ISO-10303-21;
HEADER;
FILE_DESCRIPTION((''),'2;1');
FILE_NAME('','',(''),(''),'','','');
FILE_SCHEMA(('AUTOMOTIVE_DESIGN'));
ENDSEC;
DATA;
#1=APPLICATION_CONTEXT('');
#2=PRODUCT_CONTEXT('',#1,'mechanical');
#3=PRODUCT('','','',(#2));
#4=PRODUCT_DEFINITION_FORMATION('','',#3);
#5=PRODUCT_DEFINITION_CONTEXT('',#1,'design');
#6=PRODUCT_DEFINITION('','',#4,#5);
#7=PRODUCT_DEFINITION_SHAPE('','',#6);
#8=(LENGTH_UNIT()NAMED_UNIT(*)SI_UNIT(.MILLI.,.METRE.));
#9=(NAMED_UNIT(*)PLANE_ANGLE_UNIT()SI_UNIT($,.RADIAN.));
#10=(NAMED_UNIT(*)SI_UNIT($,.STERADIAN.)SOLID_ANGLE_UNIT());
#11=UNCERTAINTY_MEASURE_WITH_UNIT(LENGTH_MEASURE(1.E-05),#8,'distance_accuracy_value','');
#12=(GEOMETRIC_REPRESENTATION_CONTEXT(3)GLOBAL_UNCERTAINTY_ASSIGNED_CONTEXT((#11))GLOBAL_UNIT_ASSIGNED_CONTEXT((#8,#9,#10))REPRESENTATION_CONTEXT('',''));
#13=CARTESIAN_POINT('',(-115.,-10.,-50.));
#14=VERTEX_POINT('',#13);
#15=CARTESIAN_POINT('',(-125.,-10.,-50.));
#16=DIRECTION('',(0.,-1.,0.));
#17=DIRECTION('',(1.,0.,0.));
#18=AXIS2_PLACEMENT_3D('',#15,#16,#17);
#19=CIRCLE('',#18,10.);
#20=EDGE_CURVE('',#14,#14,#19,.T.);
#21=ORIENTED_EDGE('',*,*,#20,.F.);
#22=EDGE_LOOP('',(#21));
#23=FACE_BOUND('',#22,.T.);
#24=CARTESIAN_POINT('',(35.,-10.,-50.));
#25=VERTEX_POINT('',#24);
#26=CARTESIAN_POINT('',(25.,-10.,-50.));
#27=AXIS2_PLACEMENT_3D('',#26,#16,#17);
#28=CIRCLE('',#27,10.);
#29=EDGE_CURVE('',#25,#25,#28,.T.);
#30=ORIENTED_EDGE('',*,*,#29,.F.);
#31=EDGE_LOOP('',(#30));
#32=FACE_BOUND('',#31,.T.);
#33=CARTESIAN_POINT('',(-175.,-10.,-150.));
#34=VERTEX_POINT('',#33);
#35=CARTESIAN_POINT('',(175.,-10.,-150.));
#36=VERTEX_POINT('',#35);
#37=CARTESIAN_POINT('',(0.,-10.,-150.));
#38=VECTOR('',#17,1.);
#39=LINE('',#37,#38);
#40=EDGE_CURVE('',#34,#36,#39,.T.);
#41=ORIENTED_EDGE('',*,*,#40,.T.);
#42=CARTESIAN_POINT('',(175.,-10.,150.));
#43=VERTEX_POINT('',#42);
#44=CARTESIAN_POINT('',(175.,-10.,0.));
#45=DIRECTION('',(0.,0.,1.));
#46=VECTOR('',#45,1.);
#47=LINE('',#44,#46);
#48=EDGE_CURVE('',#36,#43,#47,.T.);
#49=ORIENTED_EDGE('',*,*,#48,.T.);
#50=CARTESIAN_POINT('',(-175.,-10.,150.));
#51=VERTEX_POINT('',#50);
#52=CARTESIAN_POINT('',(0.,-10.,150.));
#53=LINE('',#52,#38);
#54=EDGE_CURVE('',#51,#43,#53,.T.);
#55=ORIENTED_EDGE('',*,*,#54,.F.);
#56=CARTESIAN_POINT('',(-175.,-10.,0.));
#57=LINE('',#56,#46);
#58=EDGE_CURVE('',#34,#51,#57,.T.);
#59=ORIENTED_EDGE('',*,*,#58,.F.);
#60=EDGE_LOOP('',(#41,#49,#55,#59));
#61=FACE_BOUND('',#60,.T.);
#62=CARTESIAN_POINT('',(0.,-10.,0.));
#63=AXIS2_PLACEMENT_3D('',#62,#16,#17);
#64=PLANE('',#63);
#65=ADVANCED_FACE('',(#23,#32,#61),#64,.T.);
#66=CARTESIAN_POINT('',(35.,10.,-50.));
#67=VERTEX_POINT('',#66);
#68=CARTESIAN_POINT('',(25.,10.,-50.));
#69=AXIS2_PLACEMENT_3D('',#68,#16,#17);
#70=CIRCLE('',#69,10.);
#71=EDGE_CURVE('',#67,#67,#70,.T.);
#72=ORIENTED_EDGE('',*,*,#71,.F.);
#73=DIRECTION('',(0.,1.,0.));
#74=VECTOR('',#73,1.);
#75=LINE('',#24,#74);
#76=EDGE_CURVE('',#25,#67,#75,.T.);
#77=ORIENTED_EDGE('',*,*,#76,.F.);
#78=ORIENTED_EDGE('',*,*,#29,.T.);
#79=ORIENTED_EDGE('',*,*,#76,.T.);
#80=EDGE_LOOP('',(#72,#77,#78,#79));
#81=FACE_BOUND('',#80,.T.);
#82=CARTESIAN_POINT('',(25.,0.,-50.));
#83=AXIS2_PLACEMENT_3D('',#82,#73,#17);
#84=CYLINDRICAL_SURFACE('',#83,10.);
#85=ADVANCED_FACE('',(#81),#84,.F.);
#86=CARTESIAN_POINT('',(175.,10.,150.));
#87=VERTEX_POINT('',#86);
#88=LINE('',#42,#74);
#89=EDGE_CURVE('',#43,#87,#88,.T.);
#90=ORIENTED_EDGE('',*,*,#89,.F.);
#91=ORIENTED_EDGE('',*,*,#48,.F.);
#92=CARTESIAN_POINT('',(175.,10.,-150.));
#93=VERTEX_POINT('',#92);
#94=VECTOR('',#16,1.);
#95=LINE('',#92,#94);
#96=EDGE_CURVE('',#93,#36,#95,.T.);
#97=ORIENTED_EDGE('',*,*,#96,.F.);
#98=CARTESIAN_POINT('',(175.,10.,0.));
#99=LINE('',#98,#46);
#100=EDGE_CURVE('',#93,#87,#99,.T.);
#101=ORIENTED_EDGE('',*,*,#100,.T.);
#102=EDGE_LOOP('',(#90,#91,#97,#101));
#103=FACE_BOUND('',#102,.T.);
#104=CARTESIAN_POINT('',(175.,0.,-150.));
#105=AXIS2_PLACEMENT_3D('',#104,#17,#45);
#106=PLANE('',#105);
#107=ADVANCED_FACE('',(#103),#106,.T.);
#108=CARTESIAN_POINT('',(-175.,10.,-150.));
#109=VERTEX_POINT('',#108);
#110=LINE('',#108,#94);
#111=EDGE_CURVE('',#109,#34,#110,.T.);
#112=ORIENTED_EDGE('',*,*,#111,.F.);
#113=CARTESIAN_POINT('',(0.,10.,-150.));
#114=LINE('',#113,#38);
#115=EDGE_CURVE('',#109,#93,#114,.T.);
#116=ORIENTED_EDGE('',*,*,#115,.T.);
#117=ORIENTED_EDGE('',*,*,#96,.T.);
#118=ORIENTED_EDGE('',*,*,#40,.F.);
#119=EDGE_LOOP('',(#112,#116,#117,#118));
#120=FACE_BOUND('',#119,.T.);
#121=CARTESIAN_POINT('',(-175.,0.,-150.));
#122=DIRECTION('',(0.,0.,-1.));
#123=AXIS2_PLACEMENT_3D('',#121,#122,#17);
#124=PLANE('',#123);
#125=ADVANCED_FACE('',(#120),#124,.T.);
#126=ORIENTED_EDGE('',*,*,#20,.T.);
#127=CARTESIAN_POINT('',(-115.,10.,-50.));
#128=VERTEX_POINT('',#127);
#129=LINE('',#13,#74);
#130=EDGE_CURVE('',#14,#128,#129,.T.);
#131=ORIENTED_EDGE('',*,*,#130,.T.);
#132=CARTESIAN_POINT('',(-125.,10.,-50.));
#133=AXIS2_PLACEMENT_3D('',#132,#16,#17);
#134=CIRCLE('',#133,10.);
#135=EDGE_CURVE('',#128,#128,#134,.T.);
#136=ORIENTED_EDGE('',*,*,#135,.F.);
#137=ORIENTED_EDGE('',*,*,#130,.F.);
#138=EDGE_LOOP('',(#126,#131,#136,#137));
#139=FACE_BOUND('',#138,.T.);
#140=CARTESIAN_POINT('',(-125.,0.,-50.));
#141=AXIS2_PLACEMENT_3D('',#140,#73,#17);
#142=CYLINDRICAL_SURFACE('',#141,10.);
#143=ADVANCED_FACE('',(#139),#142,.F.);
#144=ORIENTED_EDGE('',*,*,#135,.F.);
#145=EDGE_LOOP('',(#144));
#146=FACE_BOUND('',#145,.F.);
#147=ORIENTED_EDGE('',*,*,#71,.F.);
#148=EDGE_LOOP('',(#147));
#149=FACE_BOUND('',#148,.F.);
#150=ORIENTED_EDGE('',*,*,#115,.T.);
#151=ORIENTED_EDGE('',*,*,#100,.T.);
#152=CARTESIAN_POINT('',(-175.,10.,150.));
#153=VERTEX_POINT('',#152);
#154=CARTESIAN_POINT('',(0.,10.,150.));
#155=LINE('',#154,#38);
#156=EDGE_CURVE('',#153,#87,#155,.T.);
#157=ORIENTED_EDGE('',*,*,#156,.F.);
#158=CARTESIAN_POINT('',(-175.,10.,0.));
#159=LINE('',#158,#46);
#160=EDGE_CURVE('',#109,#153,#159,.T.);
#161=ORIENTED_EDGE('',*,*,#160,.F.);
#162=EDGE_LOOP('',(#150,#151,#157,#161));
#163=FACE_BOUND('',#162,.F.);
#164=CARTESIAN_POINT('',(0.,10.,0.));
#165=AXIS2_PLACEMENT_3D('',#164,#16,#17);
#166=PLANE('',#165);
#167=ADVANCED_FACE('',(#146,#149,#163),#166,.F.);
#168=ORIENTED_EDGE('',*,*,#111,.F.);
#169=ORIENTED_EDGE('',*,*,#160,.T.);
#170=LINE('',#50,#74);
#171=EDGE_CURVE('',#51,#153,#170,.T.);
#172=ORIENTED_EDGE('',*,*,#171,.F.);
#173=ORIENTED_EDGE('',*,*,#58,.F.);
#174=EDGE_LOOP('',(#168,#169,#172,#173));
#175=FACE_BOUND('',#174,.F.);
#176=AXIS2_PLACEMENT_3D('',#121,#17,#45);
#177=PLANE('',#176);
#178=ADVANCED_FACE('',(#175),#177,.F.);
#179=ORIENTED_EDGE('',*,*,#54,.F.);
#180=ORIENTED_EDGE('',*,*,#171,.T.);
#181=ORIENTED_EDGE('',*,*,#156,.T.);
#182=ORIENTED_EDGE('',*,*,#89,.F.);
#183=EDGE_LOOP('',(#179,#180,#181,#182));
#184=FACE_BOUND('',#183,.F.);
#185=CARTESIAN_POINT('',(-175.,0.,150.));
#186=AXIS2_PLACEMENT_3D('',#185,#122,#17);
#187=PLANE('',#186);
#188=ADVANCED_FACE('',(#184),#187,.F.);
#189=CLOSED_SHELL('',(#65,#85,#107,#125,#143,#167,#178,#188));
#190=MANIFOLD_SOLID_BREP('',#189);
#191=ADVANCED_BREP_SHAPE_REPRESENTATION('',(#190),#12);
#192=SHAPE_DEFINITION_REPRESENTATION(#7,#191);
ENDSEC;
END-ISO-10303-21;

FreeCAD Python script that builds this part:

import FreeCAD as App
import Part
import Sketcher
from FreeCAD import Vector
Q = App.Units.Quantity

doc = App.newDocument("Part")
body = doc.addObject("PartDesign::Body", "Body")

sketch1 = doc.addObject("Sketcher::SketchObject", "Sketch")
body.addObject(sketch1)
sketch1.AttachmentSupport = (doc.XZ_Plane, [""])
sketch1.MapMode = "FlatFace"
sketch1.addGeometry([
    Part.LineSegment(Vector(-175, 150, 0), Vector(-175, -150, 0)),
    Part.LineSegment(Vector(-175, -150, 0), Vector(175, -150, 0)),
    Part.LineSegment(Vector(175, -150, 0), Vector(175, 150, 0)),
    Part.LineSegment(Vector(175, 150, 0), Vector(-175, 150, 0)),
    Part.Circle(Vector(-125, -50, 0), Vector(0, 0, 1), 10),
    Part.Circle(Vector(25, -50, 0), Vector(0, 0, 1), 10),
], False)
sketch1.addConstraint([
    Sketcher.Constraint("Coincident", 0, 2, 1, 1),
    Sketcher.Constraint("Coincident", 1, 2, 2, 1),
    Sketcher.Constraint("Coincident", 2, 2, 3, 1),
    Sketcher.Constraint("Coincident", 3, 2, 0, 1),
    Sketcher.Constraint("Vertical", 0),
    Sketcher.Constraint("Horizontal", 1),
    Sketcher.Constraint("Vertical", 2),
    Sketcher.Constraint("Horizontal", 3),
    Sketcher.Constraint("Equal", 4, 5),
    Sketcher.Constraint("Symmetric", 0, 2, 2, 2, -1, 1),
    Sketcher.Constraint("Horizontal", 4, 3, 5, 3),
    Sketcher.Constraint("Diameter", 4, Q("20 mm")),
    Sketcher.Constraint("DistanceX", 1, 1, 1, 2, Q("350 mm")),
    Sketcher.Constraint("DistanceY", 0, 2, 0, 1, Q("300 mm")),
    Sketcher.Constraint("DistanceX", 4, 3, -1, 1, Q("125 mm")),
    Sketcher.Constraint("DistanceY", 4, 3, -1, 1, Q("50 mm")),
    Sketcher.Constraint("DistanceX", -1, 1, 5, 3, Q("25 mm")),
])
pad1 = doc.addObject("PartDesign::Pad", "Pad")
body.addObject(pad1)
pad1.Profile = sketch1
pad1.Length = 20
pad1.Midplane = True

doc.recompute()
